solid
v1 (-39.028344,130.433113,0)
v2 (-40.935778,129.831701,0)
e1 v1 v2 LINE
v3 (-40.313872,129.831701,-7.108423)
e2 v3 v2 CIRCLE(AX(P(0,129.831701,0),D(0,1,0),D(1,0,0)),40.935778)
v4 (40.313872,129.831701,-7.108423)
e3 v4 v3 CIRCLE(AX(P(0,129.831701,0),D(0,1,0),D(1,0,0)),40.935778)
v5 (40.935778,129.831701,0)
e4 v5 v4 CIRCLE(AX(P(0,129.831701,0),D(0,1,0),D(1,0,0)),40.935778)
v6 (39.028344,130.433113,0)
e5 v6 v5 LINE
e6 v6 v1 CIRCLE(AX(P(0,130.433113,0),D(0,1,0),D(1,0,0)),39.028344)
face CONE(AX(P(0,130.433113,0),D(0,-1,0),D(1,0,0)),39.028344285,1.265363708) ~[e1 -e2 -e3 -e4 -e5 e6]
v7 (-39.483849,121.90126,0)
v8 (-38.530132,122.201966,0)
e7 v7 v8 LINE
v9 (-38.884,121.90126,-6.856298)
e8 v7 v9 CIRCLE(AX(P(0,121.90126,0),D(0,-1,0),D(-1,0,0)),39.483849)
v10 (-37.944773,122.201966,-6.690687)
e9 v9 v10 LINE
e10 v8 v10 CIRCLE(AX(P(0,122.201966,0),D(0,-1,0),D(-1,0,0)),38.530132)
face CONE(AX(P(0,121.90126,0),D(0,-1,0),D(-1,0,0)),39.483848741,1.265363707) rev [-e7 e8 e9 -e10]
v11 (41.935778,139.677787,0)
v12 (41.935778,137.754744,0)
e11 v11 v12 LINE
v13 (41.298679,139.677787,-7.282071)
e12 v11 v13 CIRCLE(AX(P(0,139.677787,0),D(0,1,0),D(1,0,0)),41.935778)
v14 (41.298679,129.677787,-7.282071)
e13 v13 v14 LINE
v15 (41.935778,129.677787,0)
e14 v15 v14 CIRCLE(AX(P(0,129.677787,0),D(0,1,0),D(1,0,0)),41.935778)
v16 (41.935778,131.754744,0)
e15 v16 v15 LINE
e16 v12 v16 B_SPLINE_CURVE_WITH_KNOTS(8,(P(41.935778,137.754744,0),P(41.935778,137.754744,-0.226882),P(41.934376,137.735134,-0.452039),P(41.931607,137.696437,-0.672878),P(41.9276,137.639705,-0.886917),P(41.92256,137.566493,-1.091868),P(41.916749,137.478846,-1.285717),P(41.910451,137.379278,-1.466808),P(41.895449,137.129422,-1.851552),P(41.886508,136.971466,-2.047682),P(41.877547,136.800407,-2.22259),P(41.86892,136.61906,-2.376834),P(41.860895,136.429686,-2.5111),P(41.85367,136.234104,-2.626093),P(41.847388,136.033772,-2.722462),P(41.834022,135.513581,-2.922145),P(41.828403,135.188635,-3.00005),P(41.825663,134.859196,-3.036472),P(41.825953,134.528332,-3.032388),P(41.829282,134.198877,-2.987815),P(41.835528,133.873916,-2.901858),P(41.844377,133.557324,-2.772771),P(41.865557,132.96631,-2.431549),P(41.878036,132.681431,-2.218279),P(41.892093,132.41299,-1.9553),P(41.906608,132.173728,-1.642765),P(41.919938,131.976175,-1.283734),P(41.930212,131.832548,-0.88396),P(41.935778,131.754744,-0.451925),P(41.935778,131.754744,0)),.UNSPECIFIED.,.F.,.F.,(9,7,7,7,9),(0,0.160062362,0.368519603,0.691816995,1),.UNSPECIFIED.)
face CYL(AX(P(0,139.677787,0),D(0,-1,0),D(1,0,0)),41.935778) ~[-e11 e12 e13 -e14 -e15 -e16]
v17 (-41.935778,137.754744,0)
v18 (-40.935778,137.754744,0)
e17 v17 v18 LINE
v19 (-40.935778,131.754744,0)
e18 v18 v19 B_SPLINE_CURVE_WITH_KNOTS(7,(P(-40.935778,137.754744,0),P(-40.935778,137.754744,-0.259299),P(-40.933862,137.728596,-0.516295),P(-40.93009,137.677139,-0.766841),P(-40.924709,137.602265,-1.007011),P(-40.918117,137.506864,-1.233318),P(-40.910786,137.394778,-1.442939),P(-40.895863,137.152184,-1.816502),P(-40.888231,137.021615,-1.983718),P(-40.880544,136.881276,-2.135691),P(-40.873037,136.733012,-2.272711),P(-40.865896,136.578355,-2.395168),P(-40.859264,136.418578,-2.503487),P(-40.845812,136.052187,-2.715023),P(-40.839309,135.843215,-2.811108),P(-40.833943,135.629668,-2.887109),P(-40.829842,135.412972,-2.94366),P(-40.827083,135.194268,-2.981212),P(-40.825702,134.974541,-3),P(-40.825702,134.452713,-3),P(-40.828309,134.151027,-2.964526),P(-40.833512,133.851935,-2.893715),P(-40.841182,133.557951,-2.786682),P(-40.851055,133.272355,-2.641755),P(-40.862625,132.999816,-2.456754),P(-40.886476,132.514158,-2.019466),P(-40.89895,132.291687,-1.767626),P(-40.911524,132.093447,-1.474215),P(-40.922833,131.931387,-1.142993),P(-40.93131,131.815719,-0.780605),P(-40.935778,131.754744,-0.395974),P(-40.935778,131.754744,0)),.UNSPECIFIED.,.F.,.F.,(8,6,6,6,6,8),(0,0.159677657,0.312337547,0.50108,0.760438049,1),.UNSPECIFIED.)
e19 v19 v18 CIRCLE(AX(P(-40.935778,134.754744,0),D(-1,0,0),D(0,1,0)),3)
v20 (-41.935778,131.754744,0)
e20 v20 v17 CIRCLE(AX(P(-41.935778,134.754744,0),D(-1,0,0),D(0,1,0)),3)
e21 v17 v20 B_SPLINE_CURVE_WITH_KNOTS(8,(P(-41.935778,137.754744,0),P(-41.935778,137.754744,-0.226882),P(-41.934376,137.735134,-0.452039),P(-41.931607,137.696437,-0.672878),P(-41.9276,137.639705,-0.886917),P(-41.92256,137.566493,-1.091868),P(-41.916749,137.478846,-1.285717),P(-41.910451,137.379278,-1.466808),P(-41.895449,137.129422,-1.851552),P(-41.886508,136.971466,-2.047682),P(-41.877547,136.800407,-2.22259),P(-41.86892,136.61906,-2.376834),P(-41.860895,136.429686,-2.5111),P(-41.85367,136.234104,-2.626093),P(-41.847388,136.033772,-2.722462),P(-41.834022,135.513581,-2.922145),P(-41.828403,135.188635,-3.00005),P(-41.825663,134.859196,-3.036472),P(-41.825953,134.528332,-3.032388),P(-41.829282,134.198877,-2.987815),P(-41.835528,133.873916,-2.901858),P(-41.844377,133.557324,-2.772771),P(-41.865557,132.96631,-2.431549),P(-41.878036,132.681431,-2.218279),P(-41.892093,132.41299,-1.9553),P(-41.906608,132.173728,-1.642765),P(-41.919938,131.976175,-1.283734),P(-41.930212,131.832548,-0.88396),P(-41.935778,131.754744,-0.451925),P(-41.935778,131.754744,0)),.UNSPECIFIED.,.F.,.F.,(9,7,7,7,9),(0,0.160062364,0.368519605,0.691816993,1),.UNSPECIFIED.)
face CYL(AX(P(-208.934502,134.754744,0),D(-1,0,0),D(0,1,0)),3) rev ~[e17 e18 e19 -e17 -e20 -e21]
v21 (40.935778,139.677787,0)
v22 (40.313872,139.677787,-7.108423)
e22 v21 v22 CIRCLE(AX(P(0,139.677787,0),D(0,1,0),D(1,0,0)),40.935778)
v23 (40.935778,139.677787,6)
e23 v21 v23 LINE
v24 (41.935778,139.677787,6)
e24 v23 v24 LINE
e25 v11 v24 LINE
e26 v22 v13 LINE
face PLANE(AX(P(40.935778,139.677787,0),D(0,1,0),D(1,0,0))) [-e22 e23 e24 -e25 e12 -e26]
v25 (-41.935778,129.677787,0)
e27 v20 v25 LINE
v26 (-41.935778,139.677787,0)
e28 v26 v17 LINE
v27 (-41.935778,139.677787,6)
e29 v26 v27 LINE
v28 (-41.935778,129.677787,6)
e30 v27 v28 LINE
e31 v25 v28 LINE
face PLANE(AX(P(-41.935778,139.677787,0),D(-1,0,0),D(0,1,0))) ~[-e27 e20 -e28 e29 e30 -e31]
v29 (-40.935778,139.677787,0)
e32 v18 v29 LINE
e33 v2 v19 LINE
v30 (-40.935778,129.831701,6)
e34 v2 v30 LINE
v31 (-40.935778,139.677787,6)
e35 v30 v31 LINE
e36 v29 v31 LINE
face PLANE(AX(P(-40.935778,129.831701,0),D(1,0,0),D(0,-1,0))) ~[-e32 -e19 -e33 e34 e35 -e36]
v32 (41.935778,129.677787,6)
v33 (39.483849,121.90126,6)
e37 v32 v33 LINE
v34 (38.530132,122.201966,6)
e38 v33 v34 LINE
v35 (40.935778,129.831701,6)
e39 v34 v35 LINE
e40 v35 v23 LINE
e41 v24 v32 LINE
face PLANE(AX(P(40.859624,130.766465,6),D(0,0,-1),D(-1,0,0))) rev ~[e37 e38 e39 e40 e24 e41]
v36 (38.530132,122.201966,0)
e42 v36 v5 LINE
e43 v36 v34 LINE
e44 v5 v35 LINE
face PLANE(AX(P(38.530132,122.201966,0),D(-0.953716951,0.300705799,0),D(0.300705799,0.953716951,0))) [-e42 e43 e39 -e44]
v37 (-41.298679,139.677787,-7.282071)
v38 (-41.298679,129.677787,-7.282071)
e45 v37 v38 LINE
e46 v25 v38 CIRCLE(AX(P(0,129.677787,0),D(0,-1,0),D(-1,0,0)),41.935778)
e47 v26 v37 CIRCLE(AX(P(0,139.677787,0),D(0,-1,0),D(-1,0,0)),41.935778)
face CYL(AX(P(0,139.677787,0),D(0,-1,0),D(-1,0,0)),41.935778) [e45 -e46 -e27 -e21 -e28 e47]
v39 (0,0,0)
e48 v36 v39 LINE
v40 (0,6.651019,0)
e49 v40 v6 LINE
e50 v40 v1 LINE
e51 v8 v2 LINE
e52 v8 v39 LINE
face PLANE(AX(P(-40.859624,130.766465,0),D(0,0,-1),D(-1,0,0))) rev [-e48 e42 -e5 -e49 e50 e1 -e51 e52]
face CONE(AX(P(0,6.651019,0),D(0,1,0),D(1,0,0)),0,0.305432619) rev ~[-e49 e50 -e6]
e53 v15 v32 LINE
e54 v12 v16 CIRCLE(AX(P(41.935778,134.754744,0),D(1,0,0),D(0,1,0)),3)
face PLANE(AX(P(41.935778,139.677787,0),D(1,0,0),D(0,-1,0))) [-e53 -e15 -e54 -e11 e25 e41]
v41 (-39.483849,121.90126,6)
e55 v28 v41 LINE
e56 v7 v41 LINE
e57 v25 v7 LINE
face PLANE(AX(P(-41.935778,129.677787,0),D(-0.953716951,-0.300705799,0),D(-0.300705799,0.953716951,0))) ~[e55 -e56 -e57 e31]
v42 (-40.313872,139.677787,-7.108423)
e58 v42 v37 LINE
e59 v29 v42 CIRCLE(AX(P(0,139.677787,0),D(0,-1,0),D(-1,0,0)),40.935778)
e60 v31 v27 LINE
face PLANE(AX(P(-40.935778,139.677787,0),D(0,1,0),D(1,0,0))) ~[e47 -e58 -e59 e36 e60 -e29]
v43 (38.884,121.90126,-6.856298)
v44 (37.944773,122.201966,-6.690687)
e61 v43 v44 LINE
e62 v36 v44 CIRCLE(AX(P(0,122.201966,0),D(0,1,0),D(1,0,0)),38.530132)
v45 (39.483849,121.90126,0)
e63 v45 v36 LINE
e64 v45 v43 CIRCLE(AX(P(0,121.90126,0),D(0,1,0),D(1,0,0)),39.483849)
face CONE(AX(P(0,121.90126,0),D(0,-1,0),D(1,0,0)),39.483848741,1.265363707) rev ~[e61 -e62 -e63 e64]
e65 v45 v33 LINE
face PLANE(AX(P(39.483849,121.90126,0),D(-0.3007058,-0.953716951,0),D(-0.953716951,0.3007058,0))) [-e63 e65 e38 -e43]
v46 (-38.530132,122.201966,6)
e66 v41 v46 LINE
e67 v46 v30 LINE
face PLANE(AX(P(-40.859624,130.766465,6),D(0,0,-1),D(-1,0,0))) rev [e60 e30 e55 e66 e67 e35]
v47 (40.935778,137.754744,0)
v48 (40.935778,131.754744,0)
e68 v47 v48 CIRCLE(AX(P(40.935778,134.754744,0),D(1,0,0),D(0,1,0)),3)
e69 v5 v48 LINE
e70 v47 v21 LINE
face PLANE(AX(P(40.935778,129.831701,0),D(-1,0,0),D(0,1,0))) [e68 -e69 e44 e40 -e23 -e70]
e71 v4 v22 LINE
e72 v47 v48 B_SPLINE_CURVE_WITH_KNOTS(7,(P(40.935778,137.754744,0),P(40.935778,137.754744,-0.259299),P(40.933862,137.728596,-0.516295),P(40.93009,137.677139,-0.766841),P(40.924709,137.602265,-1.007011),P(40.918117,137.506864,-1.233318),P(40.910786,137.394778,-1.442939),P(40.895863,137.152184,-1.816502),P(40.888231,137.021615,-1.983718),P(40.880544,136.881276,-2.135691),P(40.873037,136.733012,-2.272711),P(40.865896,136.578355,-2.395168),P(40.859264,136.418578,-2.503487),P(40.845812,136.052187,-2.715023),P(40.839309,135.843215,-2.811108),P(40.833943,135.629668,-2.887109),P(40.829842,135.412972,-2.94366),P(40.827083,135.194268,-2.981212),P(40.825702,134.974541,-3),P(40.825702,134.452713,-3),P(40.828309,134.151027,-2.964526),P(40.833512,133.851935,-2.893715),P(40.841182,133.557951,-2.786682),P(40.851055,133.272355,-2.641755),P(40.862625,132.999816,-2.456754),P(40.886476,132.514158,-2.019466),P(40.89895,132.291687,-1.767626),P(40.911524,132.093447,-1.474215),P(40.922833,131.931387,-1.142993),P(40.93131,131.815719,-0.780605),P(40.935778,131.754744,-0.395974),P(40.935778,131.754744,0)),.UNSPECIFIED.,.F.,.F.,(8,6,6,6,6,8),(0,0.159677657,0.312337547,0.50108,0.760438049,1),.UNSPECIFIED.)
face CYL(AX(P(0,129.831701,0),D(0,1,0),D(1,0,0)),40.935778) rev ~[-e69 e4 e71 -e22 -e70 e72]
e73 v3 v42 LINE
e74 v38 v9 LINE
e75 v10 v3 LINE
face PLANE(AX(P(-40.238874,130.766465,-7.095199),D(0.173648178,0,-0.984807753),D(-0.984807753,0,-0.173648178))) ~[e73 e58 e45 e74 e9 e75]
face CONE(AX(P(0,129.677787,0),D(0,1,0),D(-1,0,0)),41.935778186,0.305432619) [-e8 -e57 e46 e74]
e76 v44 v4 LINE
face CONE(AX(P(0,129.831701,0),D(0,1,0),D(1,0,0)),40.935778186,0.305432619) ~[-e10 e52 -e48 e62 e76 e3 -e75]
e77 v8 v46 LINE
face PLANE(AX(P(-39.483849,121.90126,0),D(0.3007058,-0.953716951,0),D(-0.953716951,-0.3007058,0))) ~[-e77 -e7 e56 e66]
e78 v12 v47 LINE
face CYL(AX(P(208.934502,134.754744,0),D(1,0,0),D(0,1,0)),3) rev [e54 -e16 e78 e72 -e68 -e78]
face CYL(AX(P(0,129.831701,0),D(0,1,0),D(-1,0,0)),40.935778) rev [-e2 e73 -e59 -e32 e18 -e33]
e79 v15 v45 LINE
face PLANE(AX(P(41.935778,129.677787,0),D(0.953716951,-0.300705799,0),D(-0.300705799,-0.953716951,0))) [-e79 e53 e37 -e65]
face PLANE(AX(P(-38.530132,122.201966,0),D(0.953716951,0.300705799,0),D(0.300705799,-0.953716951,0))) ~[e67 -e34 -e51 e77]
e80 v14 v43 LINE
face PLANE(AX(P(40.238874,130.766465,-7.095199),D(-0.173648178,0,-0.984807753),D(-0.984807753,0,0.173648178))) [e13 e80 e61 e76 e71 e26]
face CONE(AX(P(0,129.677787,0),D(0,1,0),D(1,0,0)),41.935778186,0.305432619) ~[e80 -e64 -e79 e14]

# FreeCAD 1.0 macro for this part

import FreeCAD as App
import Part
import Sketcher
Q = App.Units.Quantity


def add_polygon(sketch, points):
    """Adds a closed chain of lines whose ends are joined by coincident constraints."""
    first, n = sketch.GeometryCount, len(points)
    for a, b in zip(points, points[1:] + points[:1]):
        sketch.addGeometry(Part.LineSegment(App.Vector(*a, 0), App.Vector(*b, 0)), False)
    for i in range(n):
        sketch.addConstraint(Sketcher.Constraint("Coincident", first + i, 2, first + (i + 1) % n, 1))

doc = App.newDocument("Part")
body = doc.addObject("PartDesign::Body", "Body")

# Sketch on XY plane
sketch1 = body.newObject("Sketcher::SketchObject", "Sketch")
sketch1.AttachmentSupport = (doc.getObject("XY_Plane"), [""])
sketch1.MapMode = "FlatFace"
add_polygon(sketch1, [(0, 6.7), (0, 0), (40.9, 129.8), (39, 130.4)])  # lines 0-3
sketch1.addConstraint([
    Sketcher.Constraint("Vertical", 0),
    Sketcher.Constraint("Coincident", 0, 2, -1, 1),
    Sketcher.Constraint("Perpendicular", 1, 2),
    Sketcher.Constraint("Perpendicular", 2, 3),
    Sketcher.Constraint("Distance", 2, Q("2 mm")),
    Sketcher.Constraint("Angle", 1, Q("72.5 deg")),
    Sketcher.Constraint("DistanceY", -1, 1, 1, 2, Q("129.831701 mm")),
])
revolution = body.newObject("PartDesign::Revolution", "Revolution")
revolution.Profile = sketch1
revolution.ReferenceAxis = (sketch1, ["V_Axis"])
revolution.Angle = 180

# Sketch on XY plane
sketch2 = body.newObject("Sketcher::SketchObject", "Sketch001")
sketch2.AttachmentSupport = (doc.getObject("XY_Plane"), [""])
sketch2.MapMode = "FlatFace"
add_polygon(sketch2, [(40.9, 139.7), (40.9, 129.8), (38.5, 122.2), (39.5, 121.9), (41.9, 129.7), (41.9, 139.7)])  # lines 0-5
sketch2.addConstraint([
    Sketcher.Constraint("Vertical", 0),
    Sketcher.Constraint("Vertical", 4),
    Sketcher.Constraint("Horizontal", 5),
    Sketcher.Constraint("Perpendicular", 1, 2),
    Sketcher.Constraint("Perpendicular", 2, 3),
    Sketcher.Constraint("DistanceX", 5, 2, 5, 1, Q("1 mm")),
    Sketcher.Constraint("DistanceY", 4, 1, 4, 2, Q("10 mm")),
    Sketcher.Constraint("Distance", 1, Q("8 mm")),
    Sketcher.Constraint("Distance", 2, Q("1 mm")),
    Sketcher.Constraint("Angle", 1, Q("-107.5 deg")),
    Sketcher.Constraint("DistanceY", -1, 1, 0, 2, Q("129.831701 mm")),
    Sketcher.Constraint("DistanceX", -1, 1, 0, 2, Q("40.935778 mm")),
])
revolution2 = body.newObject("PartDesign::Revolution", "Revolution001")
revolution2.Profile = sketch2
revolution2.ReferenceAxis = (sketch2, ["V_Axis"])
revolution2.Angle = 10

# Sketch on XY plane
sketch3 = body.newObject("Sketcher::SketchObject", "Sketch002")
sketch3.AttachmentSupport = (doc.getObject("XY_Plane"), [""])
sketch3.MapMode = "FlatFace"
add_polygon(sketch3, [(41.9, 139.7), (40.9, 139.7), (40.9, 129.8), (38.5, 122.2), (39.5, 121.9), (41.9, 129.7)])  # lines 0-5
sketch3.addConstraint([
    Sketcher.Constraint("Horizontal", 0),
    Sketcher.Constraint("Vertical", 1),
    Sketcher.Constraint("Vertical", 5),
    Sketcher.Constraint("Perpendicular", 2, 3),
    Sketcher.Constraint("Perpendicular", 3, 4),
    Sketcher.Constraint("DistanceX", 0, 2, 0, 1, Q("1 mm")),
    Sketcher.Constraint("DistanceY", 5, 1, 5, 2, Q("10 mm")),
    Sketcher.Constraint("Distance", 2, Q("8 mm")),
    Sketcher.Constraint("Distance", 3, Q("1 mm")),
    Sketcher.Constraint("Angle", 2, Q("-107.5 deg")),
    Sketcher.Constraint("DistanceY", -1, 1, 1, 2, Q("129.831701 mm")),
    Sketcher.Constraint("DistanceX", -1, 1, 0, 2, Q("40.935778 mm")),
])
pad1 = body.newObject("PartDesign::Pad", "Pad")
pad1.Profile = sketch3
pad1.Length = 6

# Sketch on YZ plane
sketch4 = body.newObject("Sketcher::SketchObject", "Sketch003")
sketch4.AttachmentSupport = (doc.getObject("YZ_Plane"), [""])
sketch4.MapMode = "FlatFace"
sketch4.AttachmentOffset = App.Placement(App.Vector(0, 0, 208.934502), App.Rotation())
sketch4.addGeometry(Part.Circle(App.Vector(134.8, 0, 0), App.Vector(0, 0, 1), 3), False)
sketch4.addConstraint([
    Sketcher.Constraint("PointOnObject", 0, 3, -1),
    Sketcher.Constraint("Diameter", 0, Q("6 mm")),
    Sketcher.Constraint("DistanceX", -1, 1, 0, 3, Q("134.754744 mm")),
])
pocket1 = body.newObject("PartDesign::Pocket", "Pocket")
pocket1.Profile = sketch4
pocket1.Length = 173.998724
doc.recompute()

mirrored = body.newObject("PartDesign::Mirrored", "Mirrored")
mirrored.Originals = [revolution2, pad1, pocket1]
mirrored.MirrorPlane = (doc.getObject("YZ_Plane"), [""])
body.Tip = mirrored

doc.recompute()
